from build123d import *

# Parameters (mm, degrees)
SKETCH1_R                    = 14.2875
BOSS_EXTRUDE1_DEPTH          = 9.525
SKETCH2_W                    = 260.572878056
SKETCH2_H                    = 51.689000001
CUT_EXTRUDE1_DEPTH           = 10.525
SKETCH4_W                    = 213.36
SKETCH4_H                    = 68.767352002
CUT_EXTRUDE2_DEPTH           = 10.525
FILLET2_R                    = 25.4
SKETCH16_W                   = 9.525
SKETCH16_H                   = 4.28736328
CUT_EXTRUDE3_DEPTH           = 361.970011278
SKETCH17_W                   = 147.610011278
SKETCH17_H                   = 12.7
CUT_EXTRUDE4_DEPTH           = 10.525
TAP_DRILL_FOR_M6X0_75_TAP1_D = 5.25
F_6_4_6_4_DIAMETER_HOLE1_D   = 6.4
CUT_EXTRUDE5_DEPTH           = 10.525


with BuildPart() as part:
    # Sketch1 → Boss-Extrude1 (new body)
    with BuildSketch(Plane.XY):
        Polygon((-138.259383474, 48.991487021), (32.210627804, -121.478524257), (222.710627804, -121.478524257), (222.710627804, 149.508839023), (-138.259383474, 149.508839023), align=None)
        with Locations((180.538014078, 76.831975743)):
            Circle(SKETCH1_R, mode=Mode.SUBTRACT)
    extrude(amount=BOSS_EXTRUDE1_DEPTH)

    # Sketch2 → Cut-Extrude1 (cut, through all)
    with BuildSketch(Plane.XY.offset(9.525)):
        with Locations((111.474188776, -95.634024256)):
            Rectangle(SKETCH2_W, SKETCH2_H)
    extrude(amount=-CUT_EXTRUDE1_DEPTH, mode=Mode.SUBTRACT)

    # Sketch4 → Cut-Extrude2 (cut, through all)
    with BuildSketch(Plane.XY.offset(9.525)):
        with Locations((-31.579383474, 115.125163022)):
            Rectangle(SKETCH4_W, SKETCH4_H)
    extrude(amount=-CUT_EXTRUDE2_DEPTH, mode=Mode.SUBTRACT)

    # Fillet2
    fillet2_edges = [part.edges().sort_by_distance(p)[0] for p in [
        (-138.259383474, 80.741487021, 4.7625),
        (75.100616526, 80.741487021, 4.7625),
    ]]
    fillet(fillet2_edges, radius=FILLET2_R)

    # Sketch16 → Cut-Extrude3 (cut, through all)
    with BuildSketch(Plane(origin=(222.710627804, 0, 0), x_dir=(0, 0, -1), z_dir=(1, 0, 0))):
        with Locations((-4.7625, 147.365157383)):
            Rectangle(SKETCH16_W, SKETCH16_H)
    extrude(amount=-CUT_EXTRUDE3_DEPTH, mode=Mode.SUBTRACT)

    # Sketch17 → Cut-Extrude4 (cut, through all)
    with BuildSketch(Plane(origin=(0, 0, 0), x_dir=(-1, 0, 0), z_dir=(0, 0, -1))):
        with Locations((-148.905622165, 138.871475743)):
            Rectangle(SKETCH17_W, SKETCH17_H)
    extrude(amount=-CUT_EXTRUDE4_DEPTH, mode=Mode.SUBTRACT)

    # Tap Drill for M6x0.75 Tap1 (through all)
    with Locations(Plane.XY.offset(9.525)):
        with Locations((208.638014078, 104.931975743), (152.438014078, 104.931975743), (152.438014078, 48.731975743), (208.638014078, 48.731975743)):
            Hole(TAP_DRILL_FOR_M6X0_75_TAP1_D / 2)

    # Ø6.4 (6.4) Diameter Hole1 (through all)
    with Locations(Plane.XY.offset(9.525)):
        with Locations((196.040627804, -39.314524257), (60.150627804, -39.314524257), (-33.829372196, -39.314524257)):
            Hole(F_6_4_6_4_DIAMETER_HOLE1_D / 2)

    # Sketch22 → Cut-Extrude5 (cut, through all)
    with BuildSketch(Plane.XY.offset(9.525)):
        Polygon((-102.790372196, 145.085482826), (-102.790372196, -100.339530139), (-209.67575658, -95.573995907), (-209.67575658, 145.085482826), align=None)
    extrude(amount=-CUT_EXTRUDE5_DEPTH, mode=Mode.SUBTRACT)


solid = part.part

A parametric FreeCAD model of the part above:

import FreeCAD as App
import Part
import Sketcher
from FreeCAD import Vector
Q = App.Units.Quantity


def edges_at(feature, points):
    """Names of the edges that pass closest to the given points."""
    edges = feature.Shape.Edges
    near = lambda p: min(range(len(edges)), key=lambda i: edges[i].distToShape(Part.Vertex(*p))[0])
    return sorted({f"Edge{near(p) + 1}" for p in points})

doc = App.newDocument("Part")
params = doc.addObject("Spreadsheet::Sheet", "Params")
for row, (alias, value) in enumerate([
    ("sketch1_diameter", "1.125 in"),
    ("sketch1_width", "7.5 in"),
    ("pad1_length", "0.375 in"),
    ("sketch2_height", "2.035 in"),
    ("sketch3_width", "8.4 in"),
    ("fillet_radius", "1 in"),
    ("sketch4_height", "0.375 in"),
    ("sketch5_height", "0.5 in"),
    ("hole_diameter", "5.25 mm"),
    ("hole2_diameter", "6.4 mm"),
], start=1):
    params.set(f"A{row}", alias)
    params.set(f"B{row}", "=" + value)
    params.setAlias(f"B{row}", alias)

body = doc.addObject("PartDesign::Body", "Body")

sketch1 = body.newObject("Sketcher::SketchObject", "Sketch")
sketch1.AttachmentSupport = (doc.getObject("XY_Plane"), [""])
sketch1.MapMode = "FlatFace"
sketch1.addGeometry([
    Part.LineSegment(Vector(-138.259383, 48.991487, 0), Vector(32.210628, -121.478524, 0)),
    Part.LineSegment(Vector(32.210628, -121.478524, 0), Vector(222.710628, -121.478524, 0)),
    Part.LineSegment(Vector(222.710628, -121.478524, 0), Vector(222.710628, 149.508839, 0)),
    Part.LineSegment(Vector(222.710628, 149.508839, 0), Vector(-138.259383, 149.508839, 0)),
    Part.LineSegment(Vector(-138.259383, 149.508839, 0), Vector(-138.259383, 48.991487, 0)),
    Part.Circle(Vector(180.538014, 76.831976, 0), Vector(0, 0, 1), 14.2875),
], False)
sketch1.addConstraint([
    Sketcher.Constraint("Coincident", 0, 2, 1, 1),
    Sketcher.Constraint("Coincident", 1, 2, 2, 1),
    Sketcher.Constraint("Coincident", 2, 2, 3, 1),
    Sketcher.Constraint("Coincident", 3, 2, 4, 1),
    Sketcher.Constraint("Coincident", 4, 2, 0, 1),
    Sketcher.Constraint("Horizontal", 1),
    Sketcher.Constraint("Vertical", 2),
    Sketcher.Constraint("Horizontal", 3),
    Sketcher.Constraint("Vertical", 4),
    Sketcher.Constraint("Diameter", 5, Q("1.125 in")),
    Sketcher.Constraint("DistanceX", 1, 1, 1, 2, Q("7.5 in")),
    Sketcher.Constraint("Angle", 0, Q("-45 deg")),
    Sketcher.Constraint("DistanceY", 0, 2, 5, 3, Q("7.8075 in")),
    Sketcher.Constraint("Distance", 0, 241.081002),
    Sketcher.Constraint("DistanceY", 2, 1, 2, 2, 270.987363),
    Sketcher.Constraint("DistanceY", -1, 1, 2, 2, 149.508839),
    Sketcher.Constraint("DistanceX", -1, 1, 5, 3, 180.538014),
    Sketcher.Constraint("DistanceX", -1, 1, 0, 2, 32.210628),
])
sketch1.setExpression("Constraints[9]", "Params.sketch1_diameter")
sketch1.setExpression("Constraints[10]", "Params.sketch1_width")
pad1 = body.newObject("PartDesign::Pad", "Pad")
pad1.Profile = sketch1
pad1.setExpression("Length", "Params.pad1_length")

sketch2 = body.newObject("Sketcher::SketchObject", "Sketch001")
sketch2.AttachmentSupport = (doc.getObject("XY_Plane"), [""])
sketch2.MapMode = "FlatFace"
sketch2.AttachmentOffset = App.Placement(Vector(0, 0, 0.375 * 25.4), App.Rotation())
sketch2.addGeometry([
    Part.LineSegment(Vector(-18.81225, -69.789524, 0), Vector(-18.81225, -121.478524, 0)),
    Part.LineSegment(Vector(-18.81225, -121.478524, 0), Vector(241.760628, -121.478524, 0)),
    Part.LineSegment(Vector(241.760628, -121.478524, 0), Vector(241.760628, -69.789524, 0)),
    Part.LineSegment(Vector(241.760628, -69.789524, 0), Vector(-18.81225, -69.789524, 0)),
], False)
sketch2.addConstraint([
    Sketcher.Constraint("Coincident", 0, 2, 1, 1),
    Sketcher.Constraint("Coincident", 1, 2, 2, 1),
    Sketcher.Constraint("Coincident", 2, 2, 3, 1),
    Sketcher.Constraint("Coincident", 3, 2, 0, 1),
    Sketcher.Constraint("Vertical", 0),
    Sketcher.Constraint("Horizontal", 1),
    Sketcher.Constraint("Vertical", 2),
    Sketcher.Constraint("Horizontal", 3),
    Sketcher.Constraint("DistanceY", 0, 2, 0, 1, Q("2.035 in")),
    Sketcher.Constraint("DistanceX", 1, 1, 1, 2, 260.572878),
    Sketcher.Constraint("DistanceX", 0, 2, -1, 1, 18.81225),
    Sketcher.Constraint("DistanceY", 0, 2, -1, 1, 121.478524),
])
sketch2.setExpression("Constraints[8]", "Params.sketch2_height")
pocket1 = body.newObject("PartDesign::Pocket", "Pocket")
pocket1.Profile = sketch2
pocket1.Type = "ThroughAll"

sketch3 = body.newObject("Sketcher::SketchObject", "Sketch002")
sketch3.AttachmentSupport = (doc.getObject("XY_Plane"), [""])
sketch3.MapMode = "FlatFace"
sketch3.AttachmentOffset = App.Placement(Vector(0, 0, 0.375 * 25.4), App.Rotation())
sketch3.addGeometry([
    Part.LineSegment(Vector(-138.259383, 149.508839, 0), Vector(-138.259383, 80.741487, 0)),
    Part.LineSegment(Vector(-138.259383, 80.741487, 0), Vector(75.100617, 80.741487, 0)),
    Part.LineSegment(Vector(75.100617, 80.741487, 0), Vector(75.100617, 149.508839, 0)),
    Part.LineSegment(Vector(75.100617, 149.508839, 0), Vector(-138.259383, 149.508839, 0)),
], False)
sketch3.addConstraint([
    Sketcher.Constraint("Coincident", 0, 2, 1, 1),
    Sketcher.Constraint("Coincident", 1, 2, 2, 1),
    Sketcher.Constraint("Coincident", 2, 2, 3, 1),
    Sketcher.Constraint("Coincident", 3, 2, 0, 1),
    Sketcher.Constraint("Vertical", 0),
    Sketcher.Constraint("Horizontal", 1),
    Sketcher.Constraint("Vertical", 2),
    Sketcher.Constraint("Horizontal", 3),
    Sketcher.Constraint("DistanceX", 1, 1, 1, 2, Q("8.4 in")),
    Sketcher.Constraint("DistanceY", 0, 2, 0, 1, 68.767352),
    Sketcher.Constraint("DistanceY", -1, 1, 2, 2, 149.508839),
    Sketcher.Constraint("DistanceX", 0, 2, -1, 1, 138.259383),
])
sketch3.setExpression("Constraints[8]", "Params.sketch3_width")
pocket2 = body.newObject("PartDesign::Pocket", "Pocket001")
pocket2.Profile = sketch3
pocket2.Type = "ThroughAll"
doc.recompute()

fillet = body.newObject("PartDesign::Fillet", "Fillet")
fillet.Base = (pocket2, edges_at(pocket2, [(-138.259, 80.741, 4.763), (75.101, 80.741, 4.763)]))
fillet.setExpression("Radius", "Params.fillet_radius")

sketch4 = body.newObject("Sketcher::SketchObject", "Sketch003")
sketch4.AttachmentSupport = (doc.getObject("YZ_Plane"), [""])
sketch4.MapMode = "FlatFace"
sketch4.AttachmentOffset = App.Placement(Vector(0, 0, 222.710628), App.Rotation())
sketch4.addGeometry([
    Part.LineSegment(Vector(149.508839, 9.525, 0), Vector(145.221476, 9.525, 0)),
    Part.LineSegment(Vector(145.221476, 9.525, 0), Vector(145.221476, 0, 0)),
    Part.LineSegment(Vector(145.221476, 0, 0), Vector(149.508839, 0, 0)),
    Part.LineSegment(Vector(149.508839, 0, 0), Vector(149.508839, 9.525, 0)),
], False)
sketch4.addConstraint([
    Sketcher.Constraint("Coincident", 0, 2, 1, 1),
    Sketcher.Constraint("Coincident", 1, 2, 2, 1),
    Sketcher.Constraint("Coincident", 2, 2, 3, 1),
    Sketcher.Constraint("Coincident", 3, 2, 0, 1),
    Sketcher.Constraint("Horizontal", 0),
    Sketcher.Constraint("Vertical", 1),
    Sketcher.Constraint("Horizontal", 2),
    Sketcher.Constraint("Vertical", 3),
    Sketcher.Constraint("PointOnObject", 1, 2, -1),
    Sketcher.Constraint("DistanceY", 1, 2, 1, 1, Q("0.375 in")),
    Sketcher.Constraint("DistanceX", 0, 2, 0, 1, 4.287363),
    Sketcher.Constraint("DistanceX", -1, 1, 2, 2, 149.508839),
])
sketch4.setExpression("Constraints[9]", "Params.sketch4_height")
pocket3 = body.newObject("PartDesign::Pocket", "Pocket002")
pocket3.Profile = sketch4
pocket3.Type = "ThroughAll"

sketch5 = body.newObject("Sketcher::SketchObject", "Sketch004")
sketch5.AttachmentSupport = (doc.getObject("XY_Plane"), [""])
sketch5.MapMode = "FlatFace"
sketch5.addGeometry([
    Part.LineSegment(Vector(222.710628, 145.221476, 0), Vector(222.710628, 132.521476, 0)),
    Part.LineSegment(Vector(222.710628, 132.521476, 0), Vector(75.100617, 132.521476, 0)),
    Part.LineSegment(Vector(75.100617, 132.521476, 0), Vector(75.100617, 145.221476, 0)),
    Part.LineSegment(Vector(75.100617, 145.221476, 0), Vector(222.710628, 145.221476, 0)),
], False)
sketch5.addConstraint([
    Sketcher.Constraint("Coincident", 0, 2, 1, 1),
    Sketcher.Constraint("Coincident", 1, 2, 2, 1),
    Sketcher.Constraint("Coincident", 2, 2, 3, 1),
    Sketcher.Constraint("Coincident", 3, 2, 0, 1),
    Sketcher.Constraint("Vertical", 0),
    Sketcher.Constraint("Horizontal", 1),
    Sketcher.Constraint("Vertical", 2),
    Sketcher.Constraint("Horizontal", 3),
    Sketcher.Constraint("DistanceY", 0, 2, 0, 1, Q("0.5 in")),
    Sketcher.Constraint("DistanceX", 1, 2, 1, 1, 147.610011),
    Sketcher.Constraint("DistanceX", -1, 1, 0, 2, 222.710628),
    Sketcher.Constraint("DistanceY", -1, 1, 0, 2, 132.521476),
])
sketch5.setExpression("Constraints[8]", "Params.sketch5_height")
pocket4 = body.newObject("PartDesign::Pocket", "Pocket003")
pocket4.Profile = sketch5
pocket4.Type = "ThroughAll"
pocket4.Reversed = True

sketch6 = body.newObject("Sketcher::SketchObject", "Sketch005")
sketch6.AttachmentSupport = (doc.getObject("XY_Plane"), [""])
sketch6.MapMode = "FlatFace"
sketch6.AttachmentOffset = App.Placement(Vector(0, 0, 0.375 * 25.4), App.Rotation())
sketch6.addGeometry([
    Part.Circle(Vector(208.638014, 104.931976, 0), Vector(0, 0, 1), 2.625),
    Part.Circle(Vector(152.438014, 104.931976, 0), Vector(0, 0, 1), 2.625),
    Part.Circle(Vector(152.438014, 48.731976, 0), Vector(0, 0, 1), 2.625),
    Part.Circle(Vector(208.638014, 48.731976, 0), Vector(0, 0, 1), 2.625),
], False)
sketch6.addConstraint([
    Sketcher.Constraint("Equal", 0, 1),
    Sketcher.Constraint("Equal", 1, 2),
    Sketcher.Constraint("Equal", 2, 3),
    Sketcher.Constraint("Horizontal", 0, 3, 1, 3),
    Sketcher.Constraint("Horizontal", 2, 3, 3, 3),
    Sketcher.Constraint("Vertical", 1, 3, 2, 3),
    Sketcher.Constraint("Vertical", 0, 3, 3, 3),
    Sketcher.Constraint("Diameter", 0, 5.25),
    Sketcher.Constraint("DistanceX", 1, 3, 0, 3, 56.2),
    Sketcher.Constraint("DistanceY", 2, 3, 1, 3, 56.2),
    Sketcher.Constraint("DistanceX", -1, 1, 0, 3, 208.638014),
    Sketcher.Constraint("DistanceY", -1, 1, 0, 3, 104.931976),
])
doc.recompute()
hole = body.newObject("PartDesign::Hole", "Hole")
hole.Profile = sketch6
hole.ThreadType = "None"
hole.setExpression("Diameter", "Params.hole_diameter")
hole.DepthType = "ThroughAll"

sketch7 = body.newObject("Sketcher::SketchObject", "Sketch006")
sketch7.AttachmentSupport = (doc.getObject("XY_Plane"), [""])
sketch7.MapMode = "FlatFace"
sketch7.AttachmentOffset = App.Placement(Vector(0, 0, 0.375 * 25.4), App.Rotation())
sketch7.addGeometry([
    Part.Circle(Vector(196.040628, -39.314524, 0), Vector(0, 0, 1), 3.2),
    Part.Circle(Vector(60.150628, -39.314524, 0), Vector(0, 0, 1), 3.2),
    Part.Circle(Vector(-33.829372, -39.314524, 0), Vector(0, 0, 1), 3.2),
], False)
sketch7.addConstraint([
    Sketcher.Constraint("Equal", 0, 1),
    Sketcher.Constraint("Equal", 1, 2),
    Sketcher.Constraint("Horizontal", 0, 3, 1, 3),
    Sketcher.Constraint("Horizontal", 1, 3, 2, 3),
    Sketcher.Constraint("DistanceX", 2, 3, 1, 3, Q("3.7 in")),
    Sketcher.Constraint("Diameter", 0, 6.4),
    Sketcher.Constraint("DistanceX", 1, 3, 0, 3, Q("5.35 in")),
    Sketcher.Constraint("DistanceX", -1, 1, 0, 3, 196.040628),
    Sketcher.Constraint("DistanceY", 0, 3, -1, 1, 39.314524),
])
doc.recompute()
hole2 = body.newObject("PartDesign::Hole", "Hole001")
hole2.Profile = sketch7
hole2.ThreadType = "None"
hole2.setExpression("Diameter", "Params.hole2_diameter")
hole2.DepthType = "ThroughAll"

sketch8 = body.newObject("Sketcher::SketchObject", "Sketch007")
sketch8.AttachmentSupport = (doc.getObject("XY_Plane"), [""])
sketch8.MapMode = "FlatFace"
sketch8.AttachmentOffset = App.Placement(Vector(0, 0, 0.375 * 25.4), App.Rotation())
sketch8.addGeometry([
    Part.LineSegment(Vector(-102.790372, -100.33953, 0), Vector(-102.790372, 145.085483, 0)),
    Part.LineSegment(Vector(-102.790372, 145.085483, 0), Vector(-209.675757, 145.085483, 0)),
    Part.LineSegment(Vector(-209.675757, 145.085483, 0), Vector(-209.675757, -95.573996, 0)),
    Part.LineSegment(Vector(-209.675757, -95.573996, 0), Vector(-102.790372, -100.33953, 0)),
], False)
sketch8.addConstraint([
    Sketcher.Constraint("Coincident", 0, 2, 1, 1),
    Sketcher.Constraint("Coincident", 1, 2, 2, 1),
    Sketcher.Constraint("Coincident", 2, 2, 3, 1),
    Sketcher.Constraint("Coincident", 3, 2, 0, 1),
    Sketcher.Constraint("Vertical", 0),
    Sketcher.Constraint("Horizontal", 1),
    Sketcher.Constraint("Vertical", 2),
    Sketcher.Constraint("DistanceY", 2, 2, 2, 1, 240.659479),
    Sketcher.Constraint("Distance", 3, 106.991568),
    Sketcher.Constraint("DistanceX", 1, 2, 1, 1, 106.885384),
    Sketcher.Constraint("DistanceY", 3, 2, -1, 1, 100.33953),
    Sketcher.Constraint("DistanceX", 0, 2, -1, 1, 102.790372),
])
pocket5 = body.newObject("PartDesign::Pocket", "Pocket004")
pocket5.Profile = sketch8
pocket5.Type = "ThroughAll"

doc.recompute()
